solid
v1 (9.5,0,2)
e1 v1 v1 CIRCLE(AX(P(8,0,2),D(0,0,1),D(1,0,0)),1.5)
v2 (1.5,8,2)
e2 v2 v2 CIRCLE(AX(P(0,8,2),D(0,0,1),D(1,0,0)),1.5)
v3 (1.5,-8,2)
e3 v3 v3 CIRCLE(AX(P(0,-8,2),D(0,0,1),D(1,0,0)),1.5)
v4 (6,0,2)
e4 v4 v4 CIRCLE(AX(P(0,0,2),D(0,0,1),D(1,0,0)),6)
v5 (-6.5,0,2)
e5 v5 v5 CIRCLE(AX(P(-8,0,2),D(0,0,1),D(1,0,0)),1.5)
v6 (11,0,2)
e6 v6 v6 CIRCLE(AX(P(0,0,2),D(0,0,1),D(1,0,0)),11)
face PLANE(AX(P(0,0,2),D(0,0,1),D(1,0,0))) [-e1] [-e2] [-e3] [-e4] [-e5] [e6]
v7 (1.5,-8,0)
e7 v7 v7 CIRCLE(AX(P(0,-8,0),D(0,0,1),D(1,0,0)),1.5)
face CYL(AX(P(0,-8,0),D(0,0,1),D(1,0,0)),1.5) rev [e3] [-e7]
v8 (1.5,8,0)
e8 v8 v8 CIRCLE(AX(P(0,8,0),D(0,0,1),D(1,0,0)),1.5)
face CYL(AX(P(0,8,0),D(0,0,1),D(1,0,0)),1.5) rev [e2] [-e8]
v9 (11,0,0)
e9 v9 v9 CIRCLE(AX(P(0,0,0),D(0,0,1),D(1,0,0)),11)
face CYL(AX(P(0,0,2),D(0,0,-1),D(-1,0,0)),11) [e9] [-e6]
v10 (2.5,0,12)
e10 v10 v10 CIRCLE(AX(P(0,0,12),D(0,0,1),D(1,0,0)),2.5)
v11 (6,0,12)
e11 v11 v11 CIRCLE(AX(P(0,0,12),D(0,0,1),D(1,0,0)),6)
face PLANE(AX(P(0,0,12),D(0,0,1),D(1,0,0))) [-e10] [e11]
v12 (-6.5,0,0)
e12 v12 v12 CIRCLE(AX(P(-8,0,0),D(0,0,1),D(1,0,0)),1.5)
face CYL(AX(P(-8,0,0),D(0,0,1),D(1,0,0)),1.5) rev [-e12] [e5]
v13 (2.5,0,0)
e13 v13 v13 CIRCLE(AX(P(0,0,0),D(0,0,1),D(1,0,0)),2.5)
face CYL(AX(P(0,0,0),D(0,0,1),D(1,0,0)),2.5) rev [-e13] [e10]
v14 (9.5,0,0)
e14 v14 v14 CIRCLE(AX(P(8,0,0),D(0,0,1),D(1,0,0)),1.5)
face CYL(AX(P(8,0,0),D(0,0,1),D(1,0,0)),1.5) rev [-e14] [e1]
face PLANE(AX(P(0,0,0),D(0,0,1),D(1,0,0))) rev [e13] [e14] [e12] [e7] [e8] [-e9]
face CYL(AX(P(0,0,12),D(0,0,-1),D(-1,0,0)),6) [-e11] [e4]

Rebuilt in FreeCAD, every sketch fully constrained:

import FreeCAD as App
import Part
import Sketcher
from FreeCAD import Vector
Q = App.Units.Quantity

doc = App.newDocument("Part")
body = doc.addObject("PartDesign::Body", "Body")

# Sketch on XY plane
sketch1 = body.newObject("Sketcher::SketchObject", "Sketch")
sketch1.AttachmentSupport = (doc.getObject("XY_Plane"), [""])
sketch1.MapMode = "FlatFace"
sketch1.addGeometry(Part.Circle(Vector(0, 0, 0), Vector(0, 0, 1), 11), False)
sketch1.addConstraint([
    Sketcher.Constraint("Coincident", 0, 3, -1, 1),
    Sketcher.Constraint("Diameter", 0, Q("22 mm")),
])
pad1 = body.newObject("PartDesign::Pad", "Pad")
pad1.Profile = sketch1
pad1.Length = 2

# Sketch on XY plane
sketch2 = body.newObject("Sketcher::SketchObject", "Sketch001")
sketch2.AttachmentSupport = (doc.getObject("XY_Plane"), [""])
sketch2.MapMode = "FlatFace"
sketch2.AttachmentOffset = App.Placement(Vector(0, 0, 2), App.Rotation())
sketch2.addGeometry(Part.Circle(Vector(0, 0, 0), Vector(0, 0, 1), 6), False)
sketch2.addConstraint([
    Sketcher.Constraint("Coincident", 0, 3, -1, 1),
    Sketcher.Constraint("Diameter", 0, Q("12 mm")),
])
pad2 = body.newObject("PartDesign::Pad", "Pad001")
pad2.Profile = sketch2
pad2.Length = 10

# Sketch on XY plane
sketch3 = body.newObject("Sketcher::SketchObject", "Sketch002")
sketch3.AttachmentSupport = (doc.getObject("XY_Plane"), [""])
sketch3.MapMode = "FlatFace"
sketch3.AttachmentOffset = App.Placement(Vector(0, 0, 12), App.Rotation())
sketch3.addGeometry(Part.Circle(Vector(0, 0, 0), Vector(0, 0, 1), 2.5), False)
sketch3.addConstraint([
    Sketcher.Constraint("Coincident", 0, 3, -1, 1),
    Sketcher.Constraint("Diameter", 0, Q("5 mm")),
])
pocket1 = body.newObject("PartDesign::Pocket", "Pocket")
pocket1.Profile = sketch3
pocket1.Type = "ThroughAll"

# Sketch on XY plane
sketch4 = body.newObject("Sketcher::SketchObject", "Sketch003")
sketch4.AttachmentSupport = (doc.getObject("XY_Plane"), [""])
sketch4.MapMode = "FlatFace"
sketch4.AttachmentOffset = App.Placement(Vector(0, 0, 2), App.Rotation())
sketch4.addGeometry([
    Part.Circle(Vector(0, 8, 0), Vector(0, 0, 1), 1.5),
    Part.Circle(Vector(8, 0, 0), Vector(0, 0, 1), 1.5),
    Part.Circle(Vector(0, -8, 0), Vector(0, 0, 1), 1.5),
    Part.Circle(Vector(-8, 0, 0), Vector(0, 0, 1), 1.5),
], False)
sketch4.addConstraint([
    Sketcher.Constraint("Equal", 0, 1),
    Sketcher.Constraint("Equal", 1, 2),
    Sketcher.Constraint("Equal", 2, 3),
    Sketcher.Constraint("Symmetric", 0, 3, 2, 3, -1, 1),
    Sketcher.Constraint("Symmetric", 1, 3, 3, 3, -1, 1),
    Sketcher.Constraint("PointOnObject", 0, 3, -2),
    Sketcher.Constraint("PointOnObject", 1, 3, -1),
    Sketcher.Constraint("Diameter", 0, Q("3 mm")),
    Sketcher.Constraint("DistanceY", -1, 1, 0, 3, Q("8 mm")),
    Sketcher.Constraint("DistanceX", -1, 1, 1, 3, Q("8 mm")),
])
pocket2 = body.newObject("PartDesign::Pocket", "Pocket001")
pocket2.Profile = sketch4
pocket2.Type = "ThroughAll"

doc.recompute()
